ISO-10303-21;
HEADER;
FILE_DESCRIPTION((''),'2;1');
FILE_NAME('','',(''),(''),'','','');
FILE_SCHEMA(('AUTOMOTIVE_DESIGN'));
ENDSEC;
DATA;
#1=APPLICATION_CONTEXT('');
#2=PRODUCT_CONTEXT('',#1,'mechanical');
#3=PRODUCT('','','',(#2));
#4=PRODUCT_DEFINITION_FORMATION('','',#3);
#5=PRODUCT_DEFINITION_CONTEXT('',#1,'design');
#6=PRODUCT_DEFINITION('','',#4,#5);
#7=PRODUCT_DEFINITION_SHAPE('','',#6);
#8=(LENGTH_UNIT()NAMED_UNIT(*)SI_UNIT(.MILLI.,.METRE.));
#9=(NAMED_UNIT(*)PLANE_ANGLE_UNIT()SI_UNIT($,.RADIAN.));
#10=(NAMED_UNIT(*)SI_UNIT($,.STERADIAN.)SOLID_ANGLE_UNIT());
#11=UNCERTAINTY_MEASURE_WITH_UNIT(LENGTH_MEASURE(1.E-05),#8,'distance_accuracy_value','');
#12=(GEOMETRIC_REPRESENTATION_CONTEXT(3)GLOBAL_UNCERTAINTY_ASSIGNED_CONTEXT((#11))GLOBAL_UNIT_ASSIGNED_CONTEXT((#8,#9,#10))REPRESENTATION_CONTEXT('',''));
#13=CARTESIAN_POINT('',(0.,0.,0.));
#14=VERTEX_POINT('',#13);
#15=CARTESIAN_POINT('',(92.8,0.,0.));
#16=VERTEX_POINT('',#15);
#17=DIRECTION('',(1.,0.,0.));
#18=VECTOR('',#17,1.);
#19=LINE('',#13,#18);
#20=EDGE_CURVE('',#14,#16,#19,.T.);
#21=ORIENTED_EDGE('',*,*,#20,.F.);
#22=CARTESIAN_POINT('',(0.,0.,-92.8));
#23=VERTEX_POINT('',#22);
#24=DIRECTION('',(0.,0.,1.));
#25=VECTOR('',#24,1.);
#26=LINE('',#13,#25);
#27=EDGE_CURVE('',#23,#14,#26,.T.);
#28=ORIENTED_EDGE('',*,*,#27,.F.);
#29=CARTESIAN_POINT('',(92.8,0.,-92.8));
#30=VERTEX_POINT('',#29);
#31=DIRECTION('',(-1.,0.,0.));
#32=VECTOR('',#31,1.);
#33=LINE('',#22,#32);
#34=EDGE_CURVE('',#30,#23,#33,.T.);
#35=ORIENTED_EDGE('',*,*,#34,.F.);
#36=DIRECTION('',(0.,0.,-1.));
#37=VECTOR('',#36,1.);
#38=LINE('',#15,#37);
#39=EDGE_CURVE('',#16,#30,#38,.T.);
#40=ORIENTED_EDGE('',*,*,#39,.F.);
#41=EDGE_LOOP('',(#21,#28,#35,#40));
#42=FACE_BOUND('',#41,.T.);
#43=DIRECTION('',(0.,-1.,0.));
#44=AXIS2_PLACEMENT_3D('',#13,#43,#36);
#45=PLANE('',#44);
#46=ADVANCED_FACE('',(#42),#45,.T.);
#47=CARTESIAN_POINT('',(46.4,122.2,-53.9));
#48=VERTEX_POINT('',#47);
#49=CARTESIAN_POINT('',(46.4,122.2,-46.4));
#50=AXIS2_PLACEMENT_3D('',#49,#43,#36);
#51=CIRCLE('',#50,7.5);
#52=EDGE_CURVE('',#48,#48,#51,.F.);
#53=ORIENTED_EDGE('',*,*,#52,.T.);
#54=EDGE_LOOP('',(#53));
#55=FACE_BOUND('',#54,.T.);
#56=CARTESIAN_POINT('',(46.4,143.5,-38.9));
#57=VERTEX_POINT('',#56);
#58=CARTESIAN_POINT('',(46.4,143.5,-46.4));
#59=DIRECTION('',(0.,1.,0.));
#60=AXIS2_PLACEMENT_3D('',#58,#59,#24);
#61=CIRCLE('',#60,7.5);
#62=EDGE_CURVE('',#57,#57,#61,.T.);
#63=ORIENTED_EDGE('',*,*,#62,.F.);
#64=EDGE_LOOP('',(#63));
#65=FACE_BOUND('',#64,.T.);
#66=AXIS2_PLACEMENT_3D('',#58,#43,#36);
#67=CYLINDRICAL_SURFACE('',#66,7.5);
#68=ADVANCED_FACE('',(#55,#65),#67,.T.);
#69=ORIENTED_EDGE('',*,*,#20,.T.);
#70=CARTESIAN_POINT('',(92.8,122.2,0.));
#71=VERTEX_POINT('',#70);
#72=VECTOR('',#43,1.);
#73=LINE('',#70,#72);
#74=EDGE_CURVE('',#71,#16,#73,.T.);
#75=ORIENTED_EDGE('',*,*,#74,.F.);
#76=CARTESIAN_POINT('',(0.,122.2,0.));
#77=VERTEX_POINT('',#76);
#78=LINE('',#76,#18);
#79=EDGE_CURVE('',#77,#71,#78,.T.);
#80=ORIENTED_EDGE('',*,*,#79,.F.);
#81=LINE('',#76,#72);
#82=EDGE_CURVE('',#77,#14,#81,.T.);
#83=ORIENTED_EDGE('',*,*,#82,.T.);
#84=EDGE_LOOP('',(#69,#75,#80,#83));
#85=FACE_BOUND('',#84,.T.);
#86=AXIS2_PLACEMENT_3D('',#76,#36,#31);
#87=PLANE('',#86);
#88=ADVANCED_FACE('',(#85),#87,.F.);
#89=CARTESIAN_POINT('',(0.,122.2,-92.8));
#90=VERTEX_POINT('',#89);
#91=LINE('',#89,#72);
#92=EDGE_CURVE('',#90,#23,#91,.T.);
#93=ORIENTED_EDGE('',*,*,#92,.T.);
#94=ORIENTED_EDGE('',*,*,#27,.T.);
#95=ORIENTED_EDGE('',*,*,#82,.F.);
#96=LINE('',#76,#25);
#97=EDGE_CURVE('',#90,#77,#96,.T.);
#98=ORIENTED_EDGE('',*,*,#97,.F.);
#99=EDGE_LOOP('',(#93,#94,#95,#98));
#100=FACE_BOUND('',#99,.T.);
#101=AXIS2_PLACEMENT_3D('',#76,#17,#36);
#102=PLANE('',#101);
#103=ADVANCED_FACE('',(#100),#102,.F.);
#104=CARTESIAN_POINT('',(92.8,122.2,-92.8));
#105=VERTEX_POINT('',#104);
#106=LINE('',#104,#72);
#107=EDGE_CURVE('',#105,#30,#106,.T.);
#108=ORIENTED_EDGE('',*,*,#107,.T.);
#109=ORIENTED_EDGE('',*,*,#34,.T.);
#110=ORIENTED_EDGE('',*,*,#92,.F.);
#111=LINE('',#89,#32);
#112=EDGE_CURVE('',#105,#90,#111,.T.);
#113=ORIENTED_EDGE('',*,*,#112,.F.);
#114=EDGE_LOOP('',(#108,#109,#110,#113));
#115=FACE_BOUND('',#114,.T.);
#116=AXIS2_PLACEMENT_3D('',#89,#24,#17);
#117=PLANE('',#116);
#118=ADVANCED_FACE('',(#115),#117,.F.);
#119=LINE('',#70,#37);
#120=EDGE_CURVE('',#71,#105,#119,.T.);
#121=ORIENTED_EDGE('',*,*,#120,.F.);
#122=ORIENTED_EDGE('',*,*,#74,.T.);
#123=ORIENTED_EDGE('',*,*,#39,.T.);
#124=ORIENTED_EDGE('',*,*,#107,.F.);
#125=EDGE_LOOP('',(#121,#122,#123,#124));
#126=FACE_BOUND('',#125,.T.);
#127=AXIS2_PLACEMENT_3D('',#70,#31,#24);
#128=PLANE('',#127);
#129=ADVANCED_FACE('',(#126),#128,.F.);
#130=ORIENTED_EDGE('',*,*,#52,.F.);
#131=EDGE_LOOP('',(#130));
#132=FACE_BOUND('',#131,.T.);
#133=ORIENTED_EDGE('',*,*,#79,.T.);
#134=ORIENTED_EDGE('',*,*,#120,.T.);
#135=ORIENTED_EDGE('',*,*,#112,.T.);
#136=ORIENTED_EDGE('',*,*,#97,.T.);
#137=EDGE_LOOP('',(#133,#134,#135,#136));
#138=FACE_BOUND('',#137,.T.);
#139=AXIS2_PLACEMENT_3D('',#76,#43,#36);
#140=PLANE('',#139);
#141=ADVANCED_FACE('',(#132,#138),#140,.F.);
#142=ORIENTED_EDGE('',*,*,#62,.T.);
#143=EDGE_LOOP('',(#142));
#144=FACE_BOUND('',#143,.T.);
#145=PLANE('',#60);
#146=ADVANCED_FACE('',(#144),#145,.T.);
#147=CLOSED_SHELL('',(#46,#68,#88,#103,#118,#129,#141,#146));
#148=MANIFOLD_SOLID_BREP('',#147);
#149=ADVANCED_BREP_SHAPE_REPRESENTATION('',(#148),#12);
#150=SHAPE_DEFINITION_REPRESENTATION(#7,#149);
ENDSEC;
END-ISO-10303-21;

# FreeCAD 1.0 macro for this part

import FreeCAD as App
import Part
import Sketcher
from FreeCAD import Vector

doc = App.newDocument("Part")
body = doc.addObject("PartDesign::Body", "Body")

# Sketch on XZ plane
sketch1 = body.newObject("Sketcher::SketchObject", "Sketch")
sketch1.AttachmentSupport = (doc.getObject("XZ_Plane"), [""])
sketch1.MapMode = "FlatFace"
sketch1.addGeometry([
    Part.LineSegment(Vector(0, -93, 0), Vector(0, 0, 0)),
    Part.LineSegment(Vector(0, 0, 0), Vector(93, 0, 0)),
    Part.LineSegment(Vector(93, 0, 0), Vector(93, -93, 0)),
    Part.LineSegment(Vector(93, -93, 0), Vector(0, -93, 0)),
], False)
sketch1.addConstraint([
    Sketcher.Constraint("Coincident", 0, 2, 1, 1),
    Sketcher.Constraint("Coincident", 1, 2, 2, 1),
    Sketcher.Constraint("Coincident", 2, 2, 3, 1),
    Sketcher.Constraint("Coincident", 3, 2, 0, 1),
    Sketcher.Constraint("Vertical", 0),
    Sketcher.Constraint("Horizontal", 1),
    Sketcher.Constraint("Vertical", 2),
    Sketcher.Constraint("Horizontal", 3),
    Sketcher.Constraint("Coincident", 0, 2, -1, 1),
    Sketcher.Constraint("Equal", 3, 0),
    Sketcher.Constraint("DistanceX", 1, 1, 1, 2, 92.8),
])
pad1 = body.newObject("PartDesign::Pad", "Pad")
pad1.Profile = sketch1
pad1.Length = 122.2
pad1.Reversed = True

# Sketch on XZ plane
sketch2 = body.newObject("Sketcher::SketchObject", "Sketch001")
sketch2.AttachmentSupport = (doc.getObject("XZ_Plane"), [""])
sketch2.MapMode = "FlatFace"
sketch2.AttachmentOffset = App.Placement(Vector(0, 0, -122.2), App.Rotation())
sketch2.addGeometry(Part.Circle(Vector(46, -46, 0), Vector(0, 0, 1), 8), False)
sketch2.addConstraint([
    Sketcher.Constraint("Diameter", 0, 15.0),
    Sketcher.Constraint("DistanceX", -1, 1, 0, 3, 46.4),
    Sketcher.Constraint("DistanceY", 0, 3, -1, 1, 46.4),
])
pad2 = body.newObject("PartDesign::Pad", "Pad001")
pad2.Profile = sketch2
pad2.Length = 21.3
pad2.Reversed = True

doc.recompute()
